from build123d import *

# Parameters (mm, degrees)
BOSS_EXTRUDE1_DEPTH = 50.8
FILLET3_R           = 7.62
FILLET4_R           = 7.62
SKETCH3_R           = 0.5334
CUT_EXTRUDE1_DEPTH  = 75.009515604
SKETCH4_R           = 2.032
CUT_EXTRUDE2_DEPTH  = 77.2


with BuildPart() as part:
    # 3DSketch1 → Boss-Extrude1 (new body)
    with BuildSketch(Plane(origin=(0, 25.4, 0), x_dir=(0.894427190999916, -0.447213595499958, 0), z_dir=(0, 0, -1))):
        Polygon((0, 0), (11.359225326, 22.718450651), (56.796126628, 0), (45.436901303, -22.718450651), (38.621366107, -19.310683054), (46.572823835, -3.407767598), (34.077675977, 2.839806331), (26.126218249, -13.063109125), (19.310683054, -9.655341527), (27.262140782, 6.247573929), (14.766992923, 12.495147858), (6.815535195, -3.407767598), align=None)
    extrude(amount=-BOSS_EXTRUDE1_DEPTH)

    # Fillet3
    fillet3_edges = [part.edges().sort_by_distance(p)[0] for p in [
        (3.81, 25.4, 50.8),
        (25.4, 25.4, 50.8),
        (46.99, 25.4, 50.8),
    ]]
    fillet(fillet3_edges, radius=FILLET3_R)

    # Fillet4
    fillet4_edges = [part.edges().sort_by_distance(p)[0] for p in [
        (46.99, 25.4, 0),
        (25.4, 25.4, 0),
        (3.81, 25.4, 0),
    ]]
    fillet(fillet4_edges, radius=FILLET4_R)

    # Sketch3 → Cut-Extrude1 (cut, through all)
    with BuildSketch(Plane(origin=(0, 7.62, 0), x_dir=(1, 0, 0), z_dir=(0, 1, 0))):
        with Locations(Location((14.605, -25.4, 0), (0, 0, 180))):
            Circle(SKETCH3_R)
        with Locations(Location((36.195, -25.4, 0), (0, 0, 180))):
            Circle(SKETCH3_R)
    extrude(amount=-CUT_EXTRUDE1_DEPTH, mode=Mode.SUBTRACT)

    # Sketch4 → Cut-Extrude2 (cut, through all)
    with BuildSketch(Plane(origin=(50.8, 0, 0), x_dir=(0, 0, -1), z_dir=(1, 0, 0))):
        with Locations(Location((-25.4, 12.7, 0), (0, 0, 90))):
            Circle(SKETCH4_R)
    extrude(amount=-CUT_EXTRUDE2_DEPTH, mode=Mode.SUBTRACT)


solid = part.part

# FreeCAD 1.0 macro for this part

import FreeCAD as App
import Part
import Sketcher
Q = App.Units.Quantity


def edges_at(feature, points):
    """Names of the edges that pass closest to the given points."""
    edges = feature.Shape.Edges
    near = lambda p: min(range(len(edges)), key=lambda i: edges[i].distToShape(Part.Vertex(*p))[0])
    return sorted({f"Edge{near(p) + 1}" for p in points})


def add_polygon(sketch, points):
    """Adds a closed chain of lines whose ends are joined by coincident constraints."""
    first, n = sketch.GeometryCount, len(points)
    for a, b in zip(points, points[1:] + points[:1]):
        sketch.addGeometry(Part.LineSegment(App.Vector(*a, 0), App.Vector(*b, 0)), False)
    for i in range(n):
        sketch.addConstraint(Sketcher.Constraint("Coincident", first + i, 2, first + (i + 1) % n, 1))

doc = App.newDocument("Part")
body = doc.addObject("PartDesign::Body", "Body")

# Sketch on XY plane
sketch1 = body.newObject("Sketcher::SketchObject", "Sketch")
sketch1.AttachmentSupport = (doc.getObject("XY_Plane"), [""])
sketch1.MapMode = "FlatFace"
add_polygon(sketch1, [(0, 0), (0, 25), (8, 25), (8, 8), (22, 8), (22, 25), (29, 25), (29, 8), (43, 8), (43, 25), (51, 25), (51, 0)])  # lines 0-11
sketch1.addConstraint(Sketcher.Constraint("Vertical", 0))
sketch1.addConstraint(Sketcher.Constraint("Horizontal", 1))
sketch1.addConstraint(Sketcher.Constraint("Vertical", 2))
sketch1.addConstraint(Sketcher.Constraint("Horizontal", 3))
sketch1.addConstraint(Sketcher.Constraint("Vertical", 4))
sketch1.addConstraint(Sketcher.Constraint("Horizontal", 5))
sketch1.addConstraint(Sketcher.Constraint("Vertical", 6))
sketch1.addConstraint(Sketcher.Constraint("Horizontal", 7))
sketch1.addConstraint(Sketcher.Constraint("Vertical", 8))
sketch1.addConstraint(Sketcher.Constraint("Horizontal", 9))
sketch1.addConstraint(Sketcher.Constraint("Vertical", 10))
sketch1.addConstraint(Sketcher.Constraint("Horizontal", 11))
sketch1.addConstraint(Sketcher.Constraint("Coincident", 11, 2, -1, 1))
sketch1.addConstraint(Sketcher.Constraint("Horizontal", 1, 2, 4, 2))
sketch1.addConstraint(Sketcher.Constraint("Horizontal", 3, 2, 6, 2))
sketch1.addConstraint(Sketcher.Constraint("Horizontal", 5, 2, 8, 2))
sketch1.addConstraint(Sketcher.Constraint("Equal", 1, 5))
sketch1.addConstraint(Sketcher.Constraint("Equal", 3, 7))
sketch1.addConstraint(Sketcher.Constraint("Equal", 5, 9))
sketch1.addConstraint(Sketcher.Constraint("DistanceX", 11, 2, 11, 1, Q("2 in")))
sketch1.addConstraint(Sketcher.Constraint("DistanceY", 0, 1, 0, 2, Q("1 in")))
sketch1.addConstraint(Sketcher.Constraint("DistanceX", 1, 1, 1, 2, Q("0.3 in")))
sketch1.addConstraint(Sketcher.Constraint("DistanceY", 2, 2, 2, 1, Q("0.7 in")))
pad1 = body.newObject("PartDesign::Pad", "Pad")
pad1.Profile = sketch1
pad1.Length = Q("2 in")
doc.recompute()

fillet = body.newObject("PartDesign::Fillet", "Fillet")
fillet.Base = (pad1, edges_at(pad1, [(3.81, 25.4, 50.8), (25.4, 25.4, 50.8), (46.99, 25.4, 50.8)]))
fillet.Radius = Q("0.3 in")
doc.recompute()

fillet2 = body.newObject("PartDesign::Fillet", "Fillet001")
fillet2.Base = (fillet, edges_at(fillet, [(46.99, 25.4, 0), (25.4, 25.4, 0), (3.81, 25.4, 0)]))
fillet2.Radius = Q("0.3 in")

# Sketch on XZ plane
sketch2 = body.newObject("Sketcher::SketchObject", "Sketch001")
sketch2.AttachmentSupport = (doc.getObject("XZ_Plane"), [""])
sketch2.MapMode = "FlatFace"
sketch2.AttachmentOffset = App.Placement(App.Vector(0, 0, -0.3 * 25.4), App.Rotation())
sketch2.addGeometry(Part.Circle(App.Vector(14.6, 25.4, 0), App.Vector(0, 0, 1), 0.5), False)
sketch2.addGeometry(Part.Circle(App.Vector(36.2, 25.4, 0), App.Vector(0, 0, 1), 0.5), False)
sketch2.addConstraint(Sketcher.Constraint("Equal", 0, 1))
sketch2.addConstraint(Sketcher.Constraint("Horizontal", 0, 3, 1, 3))
sketch2.addConstraint(Sketcher.Constraint("Diameter", 0, Q("0.042 in")))
sketch2.addConstraint(Sketcher.Constraint("DistanceY", -1, 1, 0, 3, Q("1 in")))
sketch2.addConstraint(Sketcher.Constraint("DistanceX", 0, 3, 1, 3, Q("0.85 in")))
sketch2.addConstraint(Sketcher.Constraint("DistanceX", -1, 1, 0, 3, Q("0.575 in")))
pocket1 = body.newObject("PartDesign::Pocket", "Pocket")
pocket1.Profile = sketch2
pocket1.Type = "ThroughAll"
pocket1.Reversed = True

# Sketch on YZ plane
sketch3 = body.newObject("Sketcher::SketchObject", "Sketch002")
sketch3.AttachmentSupport = (doc.getObject("YZ_Plane"), [""])
sketch3.MapMode = "FlatFace"
sketch3.AttachmentOffset = App.Placement(App.Vector(0, 0, 2 * 25.4), App.Rotation())
sketch3.addGeometry(Part.Circle(App.Vector(12.7, 25.4, 0), App.Vector(0, 0, 1), 2), False)
sketch3.addConstraint(Sketcher.Constraint("Diameter", 0, Q("0.16 in")))
sketch3.addConstraint(Sketcher.Constraint("DistanceY", -1, 1, 0, 3, Q("1 in")))
sketch3.addConstraint(Sketcher.Constraint("DistanceX", -1, 1, 0, 3, Q("0.5 in")))
pocket2 = body.newObject("PartDesign::Pocket", "Pocket001")
pocket2.Profile = sketch3
pocket2.Type = "ThroughAll"

doc.recompute()
